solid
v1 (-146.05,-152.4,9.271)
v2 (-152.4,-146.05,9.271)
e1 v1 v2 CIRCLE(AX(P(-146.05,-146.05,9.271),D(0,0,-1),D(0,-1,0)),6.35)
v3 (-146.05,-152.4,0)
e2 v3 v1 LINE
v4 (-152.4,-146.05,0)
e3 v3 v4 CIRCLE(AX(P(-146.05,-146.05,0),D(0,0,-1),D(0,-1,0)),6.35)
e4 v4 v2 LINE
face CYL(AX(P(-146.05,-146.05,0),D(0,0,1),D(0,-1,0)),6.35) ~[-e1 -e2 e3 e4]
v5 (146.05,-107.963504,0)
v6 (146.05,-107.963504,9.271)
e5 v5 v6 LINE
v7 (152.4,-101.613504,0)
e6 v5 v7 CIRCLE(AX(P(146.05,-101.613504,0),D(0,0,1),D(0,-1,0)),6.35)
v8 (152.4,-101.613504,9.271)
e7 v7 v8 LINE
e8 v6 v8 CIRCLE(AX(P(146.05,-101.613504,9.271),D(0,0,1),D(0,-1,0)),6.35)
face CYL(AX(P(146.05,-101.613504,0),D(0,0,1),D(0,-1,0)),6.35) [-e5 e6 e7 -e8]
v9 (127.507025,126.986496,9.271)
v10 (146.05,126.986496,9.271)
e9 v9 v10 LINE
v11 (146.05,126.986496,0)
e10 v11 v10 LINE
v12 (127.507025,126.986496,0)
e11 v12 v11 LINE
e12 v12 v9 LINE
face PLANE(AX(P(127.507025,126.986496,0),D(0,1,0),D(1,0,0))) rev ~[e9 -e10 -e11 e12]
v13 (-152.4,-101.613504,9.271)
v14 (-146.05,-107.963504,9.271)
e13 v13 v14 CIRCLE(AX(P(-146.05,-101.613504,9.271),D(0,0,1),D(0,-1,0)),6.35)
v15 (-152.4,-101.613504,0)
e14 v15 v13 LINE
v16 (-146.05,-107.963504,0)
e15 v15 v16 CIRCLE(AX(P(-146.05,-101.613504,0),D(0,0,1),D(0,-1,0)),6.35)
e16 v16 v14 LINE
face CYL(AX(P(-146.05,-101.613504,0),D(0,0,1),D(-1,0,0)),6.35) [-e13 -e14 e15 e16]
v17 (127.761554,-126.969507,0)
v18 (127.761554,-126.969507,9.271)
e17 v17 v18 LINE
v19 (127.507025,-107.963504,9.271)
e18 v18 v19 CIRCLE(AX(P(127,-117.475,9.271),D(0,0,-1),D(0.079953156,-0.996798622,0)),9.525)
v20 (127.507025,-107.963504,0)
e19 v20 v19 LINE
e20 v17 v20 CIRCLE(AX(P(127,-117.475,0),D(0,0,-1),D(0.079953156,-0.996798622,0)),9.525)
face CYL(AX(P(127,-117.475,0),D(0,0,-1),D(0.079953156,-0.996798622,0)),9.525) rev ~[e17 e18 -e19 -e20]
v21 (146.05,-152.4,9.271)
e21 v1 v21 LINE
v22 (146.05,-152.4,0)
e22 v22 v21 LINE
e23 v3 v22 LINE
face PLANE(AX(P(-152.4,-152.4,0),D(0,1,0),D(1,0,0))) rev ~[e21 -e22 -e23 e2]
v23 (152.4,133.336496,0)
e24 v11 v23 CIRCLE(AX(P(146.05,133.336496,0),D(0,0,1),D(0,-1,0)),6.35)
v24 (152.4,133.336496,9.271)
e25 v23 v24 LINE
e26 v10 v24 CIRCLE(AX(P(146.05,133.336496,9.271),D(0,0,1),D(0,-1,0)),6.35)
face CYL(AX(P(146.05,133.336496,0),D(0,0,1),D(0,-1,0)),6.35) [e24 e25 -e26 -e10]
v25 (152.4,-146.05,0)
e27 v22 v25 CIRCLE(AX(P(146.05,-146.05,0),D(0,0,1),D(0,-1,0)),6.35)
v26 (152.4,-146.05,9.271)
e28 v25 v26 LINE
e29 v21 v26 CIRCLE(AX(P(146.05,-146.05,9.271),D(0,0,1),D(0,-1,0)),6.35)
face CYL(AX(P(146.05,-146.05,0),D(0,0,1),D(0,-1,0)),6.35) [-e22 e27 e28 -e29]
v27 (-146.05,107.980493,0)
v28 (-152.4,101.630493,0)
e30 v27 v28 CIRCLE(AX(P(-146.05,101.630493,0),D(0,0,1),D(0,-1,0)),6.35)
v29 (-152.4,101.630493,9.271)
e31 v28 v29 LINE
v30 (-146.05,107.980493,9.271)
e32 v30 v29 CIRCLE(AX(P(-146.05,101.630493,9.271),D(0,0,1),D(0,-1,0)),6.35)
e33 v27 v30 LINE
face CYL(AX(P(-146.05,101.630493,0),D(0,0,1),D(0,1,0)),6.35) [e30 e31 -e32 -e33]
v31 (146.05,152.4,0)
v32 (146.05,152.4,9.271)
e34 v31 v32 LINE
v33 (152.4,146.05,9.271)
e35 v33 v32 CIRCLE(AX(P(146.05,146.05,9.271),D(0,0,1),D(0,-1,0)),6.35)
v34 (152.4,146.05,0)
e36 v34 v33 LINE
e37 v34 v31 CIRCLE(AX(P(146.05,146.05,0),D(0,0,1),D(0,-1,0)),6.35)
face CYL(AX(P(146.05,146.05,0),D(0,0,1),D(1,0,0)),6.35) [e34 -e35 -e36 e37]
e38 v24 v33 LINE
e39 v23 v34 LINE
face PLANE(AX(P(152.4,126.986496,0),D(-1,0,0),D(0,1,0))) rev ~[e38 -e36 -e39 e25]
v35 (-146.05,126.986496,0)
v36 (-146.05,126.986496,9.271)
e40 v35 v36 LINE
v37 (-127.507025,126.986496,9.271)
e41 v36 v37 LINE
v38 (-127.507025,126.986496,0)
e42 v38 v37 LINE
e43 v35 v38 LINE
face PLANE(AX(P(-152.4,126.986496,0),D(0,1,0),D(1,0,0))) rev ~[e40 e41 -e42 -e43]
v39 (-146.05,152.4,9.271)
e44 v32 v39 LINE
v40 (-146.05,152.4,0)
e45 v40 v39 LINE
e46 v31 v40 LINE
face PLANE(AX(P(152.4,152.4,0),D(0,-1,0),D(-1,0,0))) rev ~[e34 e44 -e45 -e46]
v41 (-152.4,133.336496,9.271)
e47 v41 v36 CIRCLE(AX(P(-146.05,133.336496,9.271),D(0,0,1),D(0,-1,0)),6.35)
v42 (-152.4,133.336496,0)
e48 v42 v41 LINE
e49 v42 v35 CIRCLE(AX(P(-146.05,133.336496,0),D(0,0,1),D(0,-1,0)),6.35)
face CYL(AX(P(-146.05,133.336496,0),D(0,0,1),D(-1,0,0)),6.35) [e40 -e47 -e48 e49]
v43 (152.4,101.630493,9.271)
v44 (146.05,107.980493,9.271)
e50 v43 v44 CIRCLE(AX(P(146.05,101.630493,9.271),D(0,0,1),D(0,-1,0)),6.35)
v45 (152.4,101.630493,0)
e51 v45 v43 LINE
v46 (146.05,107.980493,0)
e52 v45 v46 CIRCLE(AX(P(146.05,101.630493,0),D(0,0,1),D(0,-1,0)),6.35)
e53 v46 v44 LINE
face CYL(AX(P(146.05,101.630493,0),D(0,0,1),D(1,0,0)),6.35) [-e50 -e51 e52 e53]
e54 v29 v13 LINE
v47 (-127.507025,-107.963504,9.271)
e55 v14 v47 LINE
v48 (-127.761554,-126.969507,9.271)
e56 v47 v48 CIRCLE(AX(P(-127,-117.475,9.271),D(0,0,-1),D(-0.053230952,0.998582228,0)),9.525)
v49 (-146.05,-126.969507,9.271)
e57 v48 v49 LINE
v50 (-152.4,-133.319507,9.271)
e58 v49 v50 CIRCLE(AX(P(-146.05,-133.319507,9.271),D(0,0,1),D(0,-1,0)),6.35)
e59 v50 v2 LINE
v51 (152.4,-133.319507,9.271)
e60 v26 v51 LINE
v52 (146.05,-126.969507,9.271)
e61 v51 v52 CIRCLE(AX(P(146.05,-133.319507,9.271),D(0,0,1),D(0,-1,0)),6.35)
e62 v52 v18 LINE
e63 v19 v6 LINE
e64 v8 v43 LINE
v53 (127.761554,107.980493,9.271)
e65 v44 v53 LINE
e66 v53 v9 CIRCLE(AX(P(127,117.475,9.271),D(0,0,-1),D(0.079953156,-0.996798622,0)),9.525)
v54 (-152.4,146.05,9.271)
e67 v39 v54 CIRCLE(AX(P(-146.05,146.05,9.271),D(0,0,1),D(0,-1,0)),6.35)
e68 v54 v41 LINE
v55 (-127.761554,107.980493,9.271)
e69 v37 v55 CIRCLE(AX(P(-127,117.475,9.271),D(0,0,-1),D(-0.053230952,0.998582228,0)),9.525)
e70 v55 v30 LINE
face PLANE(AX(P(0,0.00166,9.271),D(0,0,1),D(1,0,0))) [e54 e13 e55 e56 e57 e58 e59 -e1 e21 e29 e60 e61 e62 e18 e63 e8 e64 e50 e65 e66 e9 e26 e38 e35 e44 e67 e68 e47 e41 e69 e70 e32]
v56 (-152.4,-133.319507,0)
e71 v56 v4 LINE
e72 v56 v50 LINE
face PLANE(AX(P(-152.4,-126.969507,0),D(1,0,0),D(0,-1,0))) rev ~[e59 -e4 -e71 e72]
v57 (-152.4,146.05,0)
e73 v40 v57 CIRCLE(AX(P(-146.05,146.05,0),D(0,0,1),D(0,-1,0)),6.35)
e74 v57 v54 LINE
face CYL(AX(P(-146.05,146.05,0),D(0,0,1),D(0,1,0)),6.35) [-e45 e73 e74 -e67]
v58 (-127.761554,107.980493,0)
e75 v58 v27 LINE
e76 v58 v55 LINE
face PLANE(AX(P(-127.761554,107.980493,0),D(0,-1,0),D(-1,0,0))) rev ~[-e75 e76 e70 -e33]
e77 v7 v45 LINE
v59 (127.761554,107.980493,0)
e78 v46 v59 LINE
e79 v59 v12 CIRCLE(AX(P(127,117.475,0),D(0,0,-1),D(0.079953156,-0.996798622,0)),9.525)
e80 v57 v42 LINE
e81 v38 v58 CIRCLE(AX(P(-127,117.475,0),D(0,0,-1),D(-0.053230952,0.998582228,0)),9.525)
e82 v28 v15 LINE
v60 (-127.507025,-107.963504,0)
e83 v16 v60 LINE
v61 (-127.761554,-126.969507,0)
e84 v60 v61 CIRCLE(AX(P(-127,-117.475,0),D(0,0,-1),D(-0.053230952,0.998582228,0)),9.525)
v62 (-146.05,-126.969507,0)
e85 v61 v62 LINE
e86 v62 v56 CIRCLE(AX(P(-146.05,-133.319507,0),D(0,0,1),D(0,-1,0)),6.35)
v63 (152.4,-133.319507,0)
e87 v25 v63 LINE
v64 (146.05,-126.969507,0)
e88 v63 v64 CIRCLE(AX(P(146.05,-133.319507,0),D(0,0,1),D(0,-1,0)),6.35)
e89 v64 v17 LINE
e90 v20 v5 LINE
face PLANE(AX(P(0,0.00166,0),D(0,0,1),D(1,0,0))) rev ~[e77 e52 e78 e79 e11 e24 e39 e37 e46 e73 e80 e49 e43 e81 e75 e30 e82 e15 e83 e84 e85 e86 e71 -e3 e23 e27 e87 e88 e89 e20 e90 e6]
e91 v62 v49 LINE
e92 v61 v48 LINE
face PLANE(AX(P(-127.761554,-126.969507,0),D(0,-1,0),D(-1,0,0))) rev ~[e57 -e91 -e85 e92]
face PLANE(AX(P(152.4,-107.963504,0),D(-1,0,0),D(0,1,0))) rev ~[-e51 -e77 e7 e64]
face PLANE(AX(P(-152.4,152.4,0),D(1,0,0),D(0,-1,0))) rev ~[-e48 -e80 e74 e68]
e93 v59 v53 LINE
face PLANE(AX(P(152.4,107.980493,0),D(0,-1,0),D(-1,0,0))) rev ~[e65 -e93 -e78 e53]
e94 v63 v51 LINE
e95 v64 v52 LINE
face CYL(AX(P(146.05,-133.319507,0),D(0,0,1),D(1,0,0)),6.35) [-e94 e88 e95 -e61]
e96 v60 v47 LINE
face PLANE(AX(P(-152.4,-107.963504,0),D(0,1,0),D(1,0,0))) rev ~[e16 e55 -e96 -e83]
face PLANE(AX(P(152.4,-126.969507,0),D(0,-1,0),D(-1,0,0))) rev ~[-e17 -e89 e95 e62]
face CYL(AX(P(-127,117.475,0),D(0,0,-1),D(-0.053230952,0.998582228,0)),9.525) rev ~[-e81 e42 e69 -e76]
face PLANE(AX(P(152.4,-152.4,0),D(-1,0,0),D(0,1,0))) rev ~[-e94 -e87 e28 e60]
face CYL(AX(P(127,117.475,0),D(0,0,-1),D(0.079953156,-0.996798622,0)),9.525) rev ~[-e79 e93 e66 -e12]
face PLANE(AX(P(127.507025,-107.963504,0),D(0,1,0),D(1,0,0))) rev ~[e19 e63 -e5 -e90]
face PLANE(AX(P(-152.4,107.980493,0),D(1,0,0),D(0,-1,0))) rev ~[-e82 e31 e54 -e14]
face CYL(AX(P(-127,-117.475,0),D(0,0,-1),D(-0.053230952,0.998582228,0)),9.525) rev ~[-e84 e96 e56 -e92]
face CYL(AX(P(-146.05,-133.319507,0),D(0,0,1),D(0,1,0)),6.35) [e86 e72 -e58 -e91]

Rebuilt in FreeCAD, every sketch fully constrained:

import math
import FreeCAD as App
import Part
import Sketcher
Q = App.Units.Quantity


def edges_at(feature, points):
    """Names of the edges that pass closest to the given points."""
    edges = feature.Shape.Edges
    near = lambda p: min(range(len(edges)), key=lambda i: edges[i].distToShape(Part.Vertex(*p))[0])
    return sorted({f"Edge{near(p) + 1}" for p in points})

doc = App.newDocument("Part")
body = doc.addObject("PartDesign::Body", "Body")

# Sketch on XY plane
sketch1 = body.newObject("Sketcher::SketchObject", "Sketch")
sketch1.AttachmentSupport = (doc.getObject("XY_Plane"), [""])
sketch1.MapMode = "FlatFace"
sketch1.addGeometry([
    Part.LineSegment(App.Vector(-152, -152, 0), App.Vector(152, -152, 0)),  # 0
    Part.LineSegment(App.Vector(152, -152, 0), App.Vector(152, -127, 0)),  # 1
    Part.LineSegment(App.Vector(152, -127, 0), App.Vector(128, -127, 0)),  # 2
    Part.ArcOfCircle(Part.Circle(App.Vector(127, -117, 0), App.Vector(0, 0, 1), 10), math.radians(87), math.radians(275)),  # 3
    Part.LineSegment(App.Vector(128, -108, 0), App.Vector(152, -108, 0)),  # 4
    Part.LineSegment(App.Vector(152, -108, 0), App.Vector(152, 108, 0)),  # 5
    Part.LineSegment(App.Vector(152, 108, 0), App.Vector(128, 108, 0)),  # 6
    Part.ArcOfCircle(Part.Circle(App.Vector(127, 117, 0), App.Vector(0, 0, 1), 10), math.radians(87), math.radians(275)),  # 7
    Part.LineSegment(App.Vector(128, 127, 0), App.Vector(152, 127, 0)),  # 8
    Part.LineSegment(App.Vector(152, 127, 0), App.Vector(152, 152, 0)),  # 9
    Part.LineSegment(App.Vector(152, 152, 0), App.Vector(-152, 152, 0)),  # 10
    Part.LineSegment(App.Vector(-152, 152, 0), App.Vector(-152, 127, 0)),  # 11
    Part.LineSegment(App.Vector(-152, 127, 0), App.Vector(-128, 127, 0)),  # 12
    Part.ArcOfCircle(Part.Circle(App.Vector(-127, 117, 0), App.Vector(0, 0, 1), 10), math.radians(-95), math.radians(93)),  # 13
    Part.LineSegment(App.Vector(-128, 108, 0), App.Vector(-152, 108, 0)),  # 14
    Part.LineSegment(App.Vector(-152, 108, 0), App.Vector(-152, -108, 0)),  # 15
    Part.LineSegment(App.Vector(-152, -108, 0), App.Vector(-128, -108, 0)),  # 16
    Part.ArcOfCircle(Part.Circle(App.Vector(-127, -117, 0), App.Vector(0, 0, 1), 10), math.radians(-95), math.radians(93)),  # 17
    Part.LineSegment(App.Vector(-128, -127, 0), App.Vector(-152, -127, 0)),  # 18
    Part.LineSegment(App.Vector(-152, -127, 0), App.Vector(-152, -152, 0)),  # 19
], False)
sketch1.addConstraint([
    Sketcher.Constraint("Coincident", 0, 2, 1, 1),
    Sketcher.Constraint("Coincident", 1, 2, 2, 1),
    Sketcher.Constraint("Coincident", 2, 2, 3, 2),
    Sketcher.Constraint("Coincident", 3, 1, 4, 1),
    Sketcher.Constraint("Coincident", 4, 2, 5, 1),
    Sketcher.Constraint("Coincident", 5, 2, 6, 1),
    Sketcher.Constraint("Coincident", 6, 2, 7, 2),
    Sketcher.Constraint("Coincident", 7, 1, 8, 1),
    Sketcher.Constraint("Coincident", 8, 2, 9, 1),
    Sketcher.Constraint("Coincident", 9, 2, 10, 1),
    Sketcher.Constraint("Coincident", 10, 2, 11, 1),
    Sketcher.Constraint("Coincident", 11, 2, 12, 1),
    Sketcher.Constraint("Coincident", 12, 2, 13, 2),
    Sketcher.Constraint("Coincident", 13, 1, 14, 1),
    Sketcher.Constraint("Coincident", 14, 2, 15, 1),
    Sketcher.Constraint("Coincident", 15, 2, 16, 1),
    Sketcher.Constraint("Coincident", 16, 2, 17, 2),
    Sketcher.Constraint("Coincident", 17, 1, 18, 1),
    Sketcher.Constraint("Coincident", 18, 2, 19, 1),
    Sketcher.Constraint("Coincident", 19, 2, 0, 1),
    Sketcher.Constraint("Horizontal", 0),
    Sketcher.Constraint("Vertical", 1),
    Sketcher.Constraint("Horizontal", 2),
    Sketcher.Constraint("Horizontal", 4),
    Sketcher.Constraint("Vertical", 5),
    Sketcher.Constraint("Horizontal", 6),
    Sketcher.Constraint("Horizontal", 8),
    Sketcher.Constraint("Vertical", 9),
    Sketcher.Constraint("Horizontal", 10),
    Sketcher.Constraint("Vertical", 11),
    Sketcher.Constraint("Horizontal", 12),
    Sketcher.Constraint("Horizontal", 14),
    Sketcher.Constraint("Vertical", 15),
    Sketcher.Constraint("Horizontal", 16),
    Sketcher.Constraint("Horizontal", 18),
    Sketcher.Constraint("Vertical", 19),
    Sketcher.Constraint("Equal", 3, 7),
    Sketcher.Constraint("Equal", 7, 13),
    Sketcher.Constraint("Equal", 13, 17),
    Sketcher.Constraint("Symmetric", 3, 3, 13, 3, -1, 1),
    Sketcher.Constraint("Symmetric", 7, 3, 17, 3, -1, 1),
    Sketcher.Constraint("Symmetric", 0, 2, 10, 2, -1, 1),
    Sketcher.Constraint("Symmetric", 7, 3, 13, 3, -2),
    Sketcher.Constraint("Symmetric", 8, 2, 11, 2, -2),
    Sketcher.Constraint("Symmetric", 5, 2, 14, 2, -2),
    Sketcher.Constraint("Symmetric", 1, 2, 18, 2, -2),
    Sketcher.Constraint("Horizontal", 4, 2, 15, 2),
    Sketcher.Constraint("Vertical", 1, 2, 4, 2),
    Sketcher.Constraint("Vertical", 2, 2, 6, 2),
    Sketcher.Constraint("Vertical", 3, 1, 7, 1),
    Sketcher.Constraint("DistanceX", 0, 1, 0, 2, Q("12 in")),
    Sketcher.Constraint("DistanceX", -1, 1, 3, 3, Q("5 in")),
    Sketcher.Constraint("DistanceY", 0, 2, -1, 1, Q("6 in")),
    Sketcher.Constraint("Radius", 3, Q("0.375 in")),
    Sketcher.Constraint("DistanceY", 3, 3, 7, 3, Q("9.25 in")),
    Sketcher.Constraint("DistanceX", 2, 2, 2, 1, 24.638446),
    Sketcher.Constraint("DistanceX", 4, 1, 4, 2, 24.892975),
])
pad1 = body.newObject("PartDesign::Pad", "Pad")
pad1.Profile = sketch1
pad1.Length = Q("0.365 in")
doc.recompute()

fillet = body.newObject("PartDesign::Fillet", "Fillet")
fillet.Base = (pad1, edges_at(pad1, [
    (-152.4, 152.4, 4.636),
    (152.4, 152.4, 4.636),
    (152.4, -152.4, 4.636),
    (-152.4, -152.4, 4.636),
    (152.4, -126.97, 4.636),
    (152.4, -107.964, 4.636),
    (152.4, 107.98, 4.636),
    (152.4, 126.986, 4.636),
    (-152.4, -107.964, 4.636),
    (-152.4, 126.986, 4.636),
    (-152.4, -126.97, 4.636),
    (-152.4, 107.98, 4.636),
]))
fillet.Radius = Q("0.25 in")

doc.recompute()
